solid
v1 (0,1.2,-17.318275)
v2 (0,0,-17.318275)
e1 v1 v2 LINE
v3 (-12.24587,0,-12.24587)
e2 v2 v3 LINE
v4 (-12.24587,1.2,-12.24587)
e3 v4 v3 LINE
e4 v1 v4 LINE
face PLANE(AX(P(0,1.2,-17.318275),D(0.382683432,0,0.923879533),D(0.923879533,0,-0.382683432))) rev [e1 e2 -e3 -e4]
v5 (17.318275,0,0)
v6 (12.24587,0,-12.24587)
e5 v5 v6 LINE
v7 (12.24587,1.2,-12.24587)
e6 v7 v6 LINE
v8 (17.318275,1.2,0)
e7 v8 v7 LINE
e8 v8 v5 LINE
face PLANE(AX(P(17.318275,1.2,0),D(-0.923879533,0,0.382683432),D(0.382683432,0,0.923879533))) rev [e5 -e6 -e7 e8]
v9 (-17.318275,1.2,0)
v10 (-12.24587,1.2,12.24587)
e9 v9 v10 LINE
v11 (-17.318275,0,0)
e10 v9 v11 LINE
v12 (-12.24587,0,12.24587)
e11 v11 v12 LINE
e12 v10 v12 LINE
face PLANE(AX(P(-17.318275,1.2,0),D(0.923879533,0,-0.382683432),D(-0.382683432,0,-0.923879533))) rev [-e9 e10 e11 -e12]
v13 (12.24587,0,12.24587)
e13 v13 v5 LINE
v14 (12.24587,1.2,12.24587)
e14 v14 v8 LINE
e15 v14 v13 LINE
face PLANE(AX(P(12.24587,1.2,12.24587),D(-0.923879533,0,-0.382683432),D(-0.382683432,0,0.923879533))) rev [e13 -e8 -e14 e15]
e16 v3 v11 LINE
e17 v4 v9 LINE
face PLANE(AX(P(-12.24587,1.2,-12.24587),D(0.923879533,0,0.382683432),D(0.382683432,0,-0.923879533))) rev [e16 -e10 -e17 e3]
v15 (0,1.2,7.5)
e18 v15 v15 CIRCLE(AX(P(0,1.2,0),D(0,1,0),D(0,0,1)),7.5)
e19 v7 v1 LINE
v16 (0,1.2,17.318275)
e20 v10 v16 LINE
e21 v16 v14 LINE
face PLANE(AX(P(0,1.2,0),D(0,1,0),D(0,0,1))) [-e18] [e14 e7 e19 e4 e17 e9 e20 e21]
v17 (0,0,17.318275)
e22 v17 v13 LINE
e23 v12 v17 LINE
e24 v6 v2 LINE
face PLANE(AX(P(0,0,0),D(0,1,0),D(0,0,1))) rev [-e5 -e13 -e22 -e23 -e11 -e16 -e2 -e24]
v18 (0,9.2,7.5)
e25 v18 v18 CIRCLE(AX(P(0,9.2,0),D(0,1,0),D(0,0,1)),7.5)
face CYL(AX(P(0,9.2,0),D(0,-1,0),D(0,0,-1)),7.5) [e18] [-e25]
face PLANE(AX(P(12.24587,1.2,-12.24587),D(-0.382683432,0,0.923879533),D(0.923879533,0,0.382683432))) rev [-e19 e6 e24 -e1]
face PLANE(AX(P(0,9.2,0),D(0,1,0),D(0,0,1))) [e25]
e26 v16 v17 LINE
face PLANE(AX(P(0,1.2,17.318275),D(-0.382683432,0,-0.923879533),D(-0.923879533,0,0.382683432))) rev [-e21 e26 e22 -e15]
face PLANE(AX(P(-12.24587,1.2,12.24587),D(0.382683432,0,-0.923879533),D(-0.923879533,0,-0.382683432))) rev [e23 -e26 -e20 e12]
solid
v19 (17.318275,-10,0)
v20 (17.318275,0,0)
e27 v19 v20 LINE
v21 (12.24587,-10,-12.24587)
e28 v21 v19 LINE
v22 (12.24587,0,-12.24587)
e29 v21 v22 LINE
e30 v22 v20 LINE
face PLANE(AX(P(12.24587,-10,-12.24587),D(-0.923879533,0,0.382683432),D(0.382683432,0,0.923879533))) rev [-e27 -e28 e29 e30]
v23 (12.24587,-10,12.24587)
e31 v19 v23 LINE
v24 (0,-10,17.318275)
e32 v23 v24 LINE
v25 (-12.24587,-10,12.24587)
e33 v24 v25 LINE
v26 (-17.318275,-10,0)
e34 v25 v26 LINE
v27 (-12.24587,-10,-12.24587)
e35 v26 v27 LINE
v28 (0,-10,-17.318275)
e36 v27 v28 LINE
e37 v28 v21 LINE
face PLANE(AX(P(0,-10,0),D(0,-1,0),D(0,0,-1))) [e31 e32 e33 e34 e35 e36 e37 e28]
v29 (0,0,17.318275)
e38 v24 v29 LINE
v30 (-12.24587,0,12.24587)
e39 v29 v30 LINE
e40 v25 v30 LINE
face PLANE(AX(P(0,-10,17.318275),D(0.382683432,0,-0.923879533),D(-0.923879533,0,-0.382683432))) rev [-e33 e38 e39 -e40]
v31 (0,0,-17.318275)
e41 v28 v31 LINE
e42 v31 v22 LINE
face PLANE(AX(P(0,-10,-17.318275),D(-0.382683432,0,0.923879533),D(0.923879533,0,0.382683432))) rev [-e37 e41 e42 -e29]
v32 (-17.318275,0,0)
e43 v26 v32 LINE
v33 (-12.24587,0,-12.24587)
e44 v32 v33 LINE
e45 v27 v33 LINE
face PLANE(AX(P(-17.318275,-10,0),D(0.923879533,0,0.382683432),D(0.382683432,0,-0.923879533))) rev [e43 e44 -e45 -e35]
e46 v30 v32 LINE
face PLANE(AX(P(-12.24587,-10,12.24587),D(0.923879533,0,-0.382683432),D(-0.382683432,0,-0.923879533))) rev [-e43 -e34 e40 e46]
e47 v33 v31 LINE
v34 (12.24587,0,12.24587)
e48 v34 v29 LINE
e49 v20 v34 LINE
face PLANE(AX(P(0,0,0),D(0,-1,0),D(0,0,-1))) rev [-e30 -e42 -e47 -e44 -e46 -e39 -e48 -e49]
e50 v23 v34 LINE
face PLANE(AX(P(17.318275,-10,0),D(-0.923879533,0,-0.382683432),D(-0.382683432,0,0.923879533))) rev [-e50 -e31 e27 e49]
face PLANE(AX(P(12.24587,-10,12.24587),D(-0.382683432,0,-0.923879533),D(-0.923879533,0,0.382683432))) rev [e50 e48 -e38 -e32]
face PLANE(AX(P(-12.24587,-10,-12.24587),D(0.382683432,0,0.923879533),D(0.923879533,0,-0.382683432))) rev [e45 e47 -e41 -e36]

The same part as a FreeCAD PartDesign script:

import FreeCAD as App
import Part
import Sketcher
Q = App.Units.Quantity

doc = App.newDocument("Part")
body = doc.addObject("PartDesign::Body", "Body")

# Sketch on XZ plane
sketch1 = body.newObject("Sketcher::SketchObject", "Sketch")
sketch1.AttachmentSupport = (doc.getObject("XZ_Plane"), [""])
sketch1.MapMode = "FlatFace"
sketch1.addGeometry([
    Part.LineSegment(App.Vector(0, 17, 0), App.Vector(12, 12, 0)),  # 0
    Part.LineSegment(App.Vector(12, 12, 0), App.Vector(17, 0, 0)),  # 1
    Part.LineSegment(App.Vector(17, 0, 0), App.Vector(12, -12, 0)),  # 2
    Part.LineSegment(App.Vector(12, -12, 0), App.Vector(0, -17, 0)),  # 3
    Part.LineSegment(App.Vector(0, -17, 0), App.Vector(-12, -12, 0)),  # 4
    Part.LineSegment(App.Vector(-12, -12, 0), App.Vector(-17, 0, 0)),  # 5
    Part.LineSegment(App.Vector(-17, 0, 0), App.Vector(-12, 12, 0)),  # 6
    Part.LineSegment(App.Vector(-12, 12, 0), App.Vector(0, 17, 0)),  # 7
], False)
sketch1.addConstraint([
    Sketcher.Constraint("Coincident", 0, 2, 1, 1),
    Sketcher.Constraint("Coincident", 1, 2, 2, 1),
    Sketcher.Constraint("Coincident", 2, 2, 3, 1),
    Sketcher.Constraint("Coincident", 3, 2, 4, 1),
    Sketcher.Constraint("Coincident", 4, 2, 5, 1),
    Sketcher.Constraint("Coincident", 5, 2, 6, 1),
    Sketcher.Constraint("Coincident", 6, 2, 7, 1),
    Sketcher.Constraint("Coincident", 7, 2, 0, 1),
    Sketcher.Constraint("Symmetric", 0, 2, 4, 2, -1, 1),
    Sketcher.Constraint("Symmetric", 1, 2, 5, 2, -1, 1),
    Sketcher.Constraint("Symmetric", 2, 2, 6, 2, -1, 1),
    Sketcher.Constraint("Symmetric", 3, 2, 7, 2, -1, 1),
    Sketcher.Constraint("Symmetric", 2, 2, 4, 2, -2),
    Sketcher.Constraint("PointOnObject", 1, 2, -1),
    Sketcher.Constraint("PointOnObject", 3, 2, -2),
    Sketcher.Constraint("Perpendicular", 0, 2),
    Sketcher.Constraint("Equal", 0, 1),
    Sketcher.Constraint("Angle", 0, Q("-22.5 deg")),
    Sketcher.Constraint("DistanceX", -1, 1, 0, 2, 12.24587),
])
pad1 = body.newObject("PartDesign::Pad", "Pad")
pad1.Profile = sketch1
pad1.Length = 1.2
pad1.Reversed = True

# Sketch on XZ plane
sketch2 = body.newObject("Sketcher::SketchObject", "Sketch001")
sketch2.AttachmentSupport = (doc.getObject("XZ_Plane"), [""])
sketch2.MapMode = "FlatFace"
sketch2.AttachmentOffset = App.Placement(App.Vector(0, 0, -1.2), App.Rotation())
sketch2.addGeometry(Part.Circle(App.Vector(0, 0, 0), App.Vector(0, 0, 1), 8), False)
sketch2.addConstraint([
    Sketcher.Constraint("Coincident", 0, 3, -1, 1),
    Sketcher.Constraint("Diameter", 0, 15.0),
])
pad2 = body.newObject("PartDesign::Pad", "Pad001")
pad2.Profile = sketch2
pad2.Length = 8
pad2.Reversed = True
body2 = doc.addObject("PartDesign::Body", "Body001")

# Sketch on XZ plane
sketch3 = body2.newObject("Sketcher::SketchObject", "Sketch002")
sketch3.AttachmentSupport = (doc.getObject("XZ_Plane001"), [""])
sketch3.MapMode = "FlatFace"
sketch3.addGeometry([
    Part.LineSegment(App.Vector(12, 12, 0), App.Vector(0, 17, 0)),  # 0
    Part.LineSegment(App.Vector(0, 17, 0), App.Vector(-12, 12, 0)),  # 1
    Part.LineSegment(App.Vector(-12, 12, 0), App.Vector(-17, 0, 0)),  # 2
    Part.LineSegment(App.Vector(-17, 0, 0), App.Vector(-12, -12, 0)),  # 3
    Part.LineSegment(App.Vector(-12, -12, 0), App.Vector(0, -17, 0)),  # 4
    Part.LineSegment(App.Vector(0, -17, 0), App.Vector(12, -12, 0)),  # 5
    Part.LineSegment(App.Vector(12, -12, 0), App.Vector(17, 0, 0)),  # 6
    Part.LineSegment(App.Vector(17, 0, 0), App.Vector(12, 12, 0)),  # 7
], False)
sketch3.addConstraint([
    Sketcher.Constraint("Coincident", 0, 2, 1, 1),
    Sketcher.Constraint("Coincident", 1, 2, 2, 1),
    Sketcher.Constraint("Coincident", 2, 2, 3, 1),
    Sketcher.Constraint("Coincident", 3, 2, 4, 1),
    Sketcher.Constraint("Coincident", 4, 2, 5, 1),
    Sketcher.Constraint("Coincident", 5, 2, 6, 1),
    Sketcher.Constraint("Coincident", 6, 2, 7, 1),
    Sketcher.Constraint("Coincident", 7, 2, 0, 1),
    Sketcher.Constraint("Symmetric", 0, 2, 4, 2, -1, 1),
    Sketcher.Constraint("Symmetric", 1, 2, 5, 2, -1, 1),
    Sketcher.Constraint("Symmetric", 2, 2, 6, 2, -1, 1),
    Sketcher.Constraint("Symmetric", 3, 2, 7, 2, -1, 1),
    Sketcher.Constraint("Symmetric", 3, 2, 5, 2, -2),
    Sketcher.Constraint("PointOnObject", 0, 2, -2),
    Sketcher.Constraint("PointOnObject", 2, 2, -1),
    Sketcher.Constraint("Perpendicular", 0, 2),
    Sketcher.Constraint("Equal", 1, 2),
    Sketcher.Constraint("Angle", 0, Q("157.5 deg")),
    Sketcher.Constraint("DistanceX", 1, 2, -1, 1, 12.24587),
])
pad3 = body2.newObject("PartDesign::Pad", "Pad002")
pad3.Profile = sketch3
pad3.Length = 10

doc.recompute()
